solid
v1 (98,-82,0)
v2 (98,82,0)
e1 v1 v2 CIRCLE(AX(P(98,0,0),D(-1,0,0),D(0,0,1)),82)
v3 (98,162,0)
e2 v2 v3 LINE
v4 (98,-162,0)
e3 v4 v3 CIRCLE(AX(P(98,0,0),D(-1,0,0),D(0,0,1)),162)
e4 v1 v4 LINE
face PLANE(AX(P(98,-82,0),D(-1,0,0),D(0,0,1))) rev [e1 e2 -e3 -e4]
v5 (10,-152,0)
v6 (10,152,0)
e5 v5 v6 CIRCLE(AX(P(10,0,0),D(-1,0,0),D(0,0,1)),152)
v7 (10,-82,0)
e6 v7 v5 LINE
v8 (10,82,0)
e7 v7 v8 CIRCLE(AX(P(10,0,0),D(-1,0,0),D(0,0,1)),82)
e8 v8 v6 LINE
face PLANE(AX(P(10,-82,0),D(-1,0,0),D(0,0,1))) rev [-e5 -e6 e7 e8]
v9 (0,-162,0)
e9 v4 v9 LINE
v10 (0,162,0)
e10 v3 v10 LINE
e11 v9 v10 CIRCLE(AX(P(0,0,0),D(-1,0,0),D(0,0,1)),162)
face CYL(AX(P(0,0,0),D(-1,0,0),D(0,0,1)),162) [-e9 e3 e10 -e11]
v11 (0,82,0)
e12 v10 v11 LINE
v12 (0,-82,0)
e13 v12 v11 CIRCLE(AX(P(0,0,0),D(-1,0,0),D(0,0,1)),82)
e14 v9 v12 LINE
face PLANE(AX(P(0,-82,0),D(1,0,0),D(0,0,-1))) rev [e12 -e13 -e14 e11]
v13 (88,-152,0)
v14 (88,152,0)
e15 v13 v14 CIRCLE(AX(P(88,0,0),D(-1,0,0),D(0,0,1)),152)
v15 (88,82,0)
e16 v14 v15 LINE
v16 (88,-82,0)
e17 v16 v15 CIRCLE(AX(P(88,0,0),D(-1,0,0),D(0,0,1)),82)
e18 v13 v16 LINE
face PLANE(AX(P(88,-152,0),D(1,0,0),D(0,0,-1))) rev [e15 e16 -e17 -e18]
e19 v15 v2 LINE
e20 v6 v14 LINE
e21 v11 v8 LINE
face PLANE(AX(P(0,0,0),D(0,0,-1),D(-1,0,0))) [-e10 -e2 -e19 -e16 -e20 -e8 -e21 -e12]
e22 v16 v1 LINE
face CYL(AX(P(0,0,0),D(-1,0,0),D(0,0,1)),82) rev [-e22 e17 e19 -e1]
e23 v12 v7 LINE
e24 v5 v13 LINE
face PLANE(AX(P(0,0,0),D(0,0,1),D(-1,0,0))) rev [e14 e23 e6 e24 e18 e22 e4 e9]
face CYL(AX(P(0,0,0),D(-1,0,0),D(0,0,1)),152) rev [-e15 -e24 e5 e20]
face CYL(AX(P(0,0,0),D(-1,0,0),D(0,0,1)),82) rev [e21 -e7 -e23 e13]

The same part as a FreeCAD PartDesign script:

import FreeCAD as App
import Part
import Sketcher
Q = App.Units.Quantity


def add_polygon(sketch, points):
    """Adds a closed chain of lines whose ends are joined by coincident constraints."""
    first, n = sketch.GeometryCount, len(points)
    for a, b in zip(points, points[1:] + points[:1]):
        sketch.addGeometry(Part.LineSegment(App.Vector(*a, 0), App.Vector(*b, 0)), False)
    for i in range(n):
        sketch.addConstraint(Sketcher.Constraint("Coincident", first + i, 2, first + (i + 1) % n, 1))

doc = App.newDocument("Part")
body = doc.addObject("PartDesign::Body", "Body")

# Sketch on XY plane
sketch1 = body.newObject("Sketcher::SketchObject", "Sketch")
sketch1.AttachmentSupport = (doc.getObject("XY_Plane"), [""])
sketch1.MapMode = "FlatFace"
add_polygon(sketch1, [(0, 162), (0, 82), (10, 82), (10, 152), (88, 152), (88, 82), (98, 82), (98, 162)])  # lines 0-7
sketch1.addConstraint([
    Sketcher.Constraint("Vertical", 0),
    Sketcher.Constraint("Horizontal", 1),
    Sketcher.Constraint("Vertical", 2),
    Sketcher.Constraint("Horizontal", 3),
    Sketcher.Constraint("Vertical", 4),
    Sketcher.Constraint("Horizontal", 5),
    Sketcher.Constraint("Vertical", 6),
    Sketcher.Constraint("Horizontal", 7),
    Sketcher.Constraint("PointOnObject", 0, 2, -2),
    Sketcher.Constraint("Horizontal", 1, 2, 4, 2),
    Sketcher.Constraint("Equal", 1, 5),
    Sketcher.Constraint("DistanceX", 1, 1, 1, 2, Q("10 mm")),
    Sketcher.Constraint("DistanceX", 3, 1, 3, 2, Q("78 mm")),
    Sketcher.Constraint("DistanceY", 0, 2, 0, 1, Q("80 mm")),
    Sketcher.Constraint("DistanceY", 2, 1, 2, 2, Q("70 mm")),
    Sketcher.Constraint("DistanceY", -1, 1, 0, 2, Q("82 mm")),
])
revolution = body.newObject("PartDesign::Revolution", "Revolution")
revolution.Profile = sketch1
revolution.ReferenceAxis = (sketch1, ["H_Axis"])
revolution.Angle = 180

doc.recompute()
